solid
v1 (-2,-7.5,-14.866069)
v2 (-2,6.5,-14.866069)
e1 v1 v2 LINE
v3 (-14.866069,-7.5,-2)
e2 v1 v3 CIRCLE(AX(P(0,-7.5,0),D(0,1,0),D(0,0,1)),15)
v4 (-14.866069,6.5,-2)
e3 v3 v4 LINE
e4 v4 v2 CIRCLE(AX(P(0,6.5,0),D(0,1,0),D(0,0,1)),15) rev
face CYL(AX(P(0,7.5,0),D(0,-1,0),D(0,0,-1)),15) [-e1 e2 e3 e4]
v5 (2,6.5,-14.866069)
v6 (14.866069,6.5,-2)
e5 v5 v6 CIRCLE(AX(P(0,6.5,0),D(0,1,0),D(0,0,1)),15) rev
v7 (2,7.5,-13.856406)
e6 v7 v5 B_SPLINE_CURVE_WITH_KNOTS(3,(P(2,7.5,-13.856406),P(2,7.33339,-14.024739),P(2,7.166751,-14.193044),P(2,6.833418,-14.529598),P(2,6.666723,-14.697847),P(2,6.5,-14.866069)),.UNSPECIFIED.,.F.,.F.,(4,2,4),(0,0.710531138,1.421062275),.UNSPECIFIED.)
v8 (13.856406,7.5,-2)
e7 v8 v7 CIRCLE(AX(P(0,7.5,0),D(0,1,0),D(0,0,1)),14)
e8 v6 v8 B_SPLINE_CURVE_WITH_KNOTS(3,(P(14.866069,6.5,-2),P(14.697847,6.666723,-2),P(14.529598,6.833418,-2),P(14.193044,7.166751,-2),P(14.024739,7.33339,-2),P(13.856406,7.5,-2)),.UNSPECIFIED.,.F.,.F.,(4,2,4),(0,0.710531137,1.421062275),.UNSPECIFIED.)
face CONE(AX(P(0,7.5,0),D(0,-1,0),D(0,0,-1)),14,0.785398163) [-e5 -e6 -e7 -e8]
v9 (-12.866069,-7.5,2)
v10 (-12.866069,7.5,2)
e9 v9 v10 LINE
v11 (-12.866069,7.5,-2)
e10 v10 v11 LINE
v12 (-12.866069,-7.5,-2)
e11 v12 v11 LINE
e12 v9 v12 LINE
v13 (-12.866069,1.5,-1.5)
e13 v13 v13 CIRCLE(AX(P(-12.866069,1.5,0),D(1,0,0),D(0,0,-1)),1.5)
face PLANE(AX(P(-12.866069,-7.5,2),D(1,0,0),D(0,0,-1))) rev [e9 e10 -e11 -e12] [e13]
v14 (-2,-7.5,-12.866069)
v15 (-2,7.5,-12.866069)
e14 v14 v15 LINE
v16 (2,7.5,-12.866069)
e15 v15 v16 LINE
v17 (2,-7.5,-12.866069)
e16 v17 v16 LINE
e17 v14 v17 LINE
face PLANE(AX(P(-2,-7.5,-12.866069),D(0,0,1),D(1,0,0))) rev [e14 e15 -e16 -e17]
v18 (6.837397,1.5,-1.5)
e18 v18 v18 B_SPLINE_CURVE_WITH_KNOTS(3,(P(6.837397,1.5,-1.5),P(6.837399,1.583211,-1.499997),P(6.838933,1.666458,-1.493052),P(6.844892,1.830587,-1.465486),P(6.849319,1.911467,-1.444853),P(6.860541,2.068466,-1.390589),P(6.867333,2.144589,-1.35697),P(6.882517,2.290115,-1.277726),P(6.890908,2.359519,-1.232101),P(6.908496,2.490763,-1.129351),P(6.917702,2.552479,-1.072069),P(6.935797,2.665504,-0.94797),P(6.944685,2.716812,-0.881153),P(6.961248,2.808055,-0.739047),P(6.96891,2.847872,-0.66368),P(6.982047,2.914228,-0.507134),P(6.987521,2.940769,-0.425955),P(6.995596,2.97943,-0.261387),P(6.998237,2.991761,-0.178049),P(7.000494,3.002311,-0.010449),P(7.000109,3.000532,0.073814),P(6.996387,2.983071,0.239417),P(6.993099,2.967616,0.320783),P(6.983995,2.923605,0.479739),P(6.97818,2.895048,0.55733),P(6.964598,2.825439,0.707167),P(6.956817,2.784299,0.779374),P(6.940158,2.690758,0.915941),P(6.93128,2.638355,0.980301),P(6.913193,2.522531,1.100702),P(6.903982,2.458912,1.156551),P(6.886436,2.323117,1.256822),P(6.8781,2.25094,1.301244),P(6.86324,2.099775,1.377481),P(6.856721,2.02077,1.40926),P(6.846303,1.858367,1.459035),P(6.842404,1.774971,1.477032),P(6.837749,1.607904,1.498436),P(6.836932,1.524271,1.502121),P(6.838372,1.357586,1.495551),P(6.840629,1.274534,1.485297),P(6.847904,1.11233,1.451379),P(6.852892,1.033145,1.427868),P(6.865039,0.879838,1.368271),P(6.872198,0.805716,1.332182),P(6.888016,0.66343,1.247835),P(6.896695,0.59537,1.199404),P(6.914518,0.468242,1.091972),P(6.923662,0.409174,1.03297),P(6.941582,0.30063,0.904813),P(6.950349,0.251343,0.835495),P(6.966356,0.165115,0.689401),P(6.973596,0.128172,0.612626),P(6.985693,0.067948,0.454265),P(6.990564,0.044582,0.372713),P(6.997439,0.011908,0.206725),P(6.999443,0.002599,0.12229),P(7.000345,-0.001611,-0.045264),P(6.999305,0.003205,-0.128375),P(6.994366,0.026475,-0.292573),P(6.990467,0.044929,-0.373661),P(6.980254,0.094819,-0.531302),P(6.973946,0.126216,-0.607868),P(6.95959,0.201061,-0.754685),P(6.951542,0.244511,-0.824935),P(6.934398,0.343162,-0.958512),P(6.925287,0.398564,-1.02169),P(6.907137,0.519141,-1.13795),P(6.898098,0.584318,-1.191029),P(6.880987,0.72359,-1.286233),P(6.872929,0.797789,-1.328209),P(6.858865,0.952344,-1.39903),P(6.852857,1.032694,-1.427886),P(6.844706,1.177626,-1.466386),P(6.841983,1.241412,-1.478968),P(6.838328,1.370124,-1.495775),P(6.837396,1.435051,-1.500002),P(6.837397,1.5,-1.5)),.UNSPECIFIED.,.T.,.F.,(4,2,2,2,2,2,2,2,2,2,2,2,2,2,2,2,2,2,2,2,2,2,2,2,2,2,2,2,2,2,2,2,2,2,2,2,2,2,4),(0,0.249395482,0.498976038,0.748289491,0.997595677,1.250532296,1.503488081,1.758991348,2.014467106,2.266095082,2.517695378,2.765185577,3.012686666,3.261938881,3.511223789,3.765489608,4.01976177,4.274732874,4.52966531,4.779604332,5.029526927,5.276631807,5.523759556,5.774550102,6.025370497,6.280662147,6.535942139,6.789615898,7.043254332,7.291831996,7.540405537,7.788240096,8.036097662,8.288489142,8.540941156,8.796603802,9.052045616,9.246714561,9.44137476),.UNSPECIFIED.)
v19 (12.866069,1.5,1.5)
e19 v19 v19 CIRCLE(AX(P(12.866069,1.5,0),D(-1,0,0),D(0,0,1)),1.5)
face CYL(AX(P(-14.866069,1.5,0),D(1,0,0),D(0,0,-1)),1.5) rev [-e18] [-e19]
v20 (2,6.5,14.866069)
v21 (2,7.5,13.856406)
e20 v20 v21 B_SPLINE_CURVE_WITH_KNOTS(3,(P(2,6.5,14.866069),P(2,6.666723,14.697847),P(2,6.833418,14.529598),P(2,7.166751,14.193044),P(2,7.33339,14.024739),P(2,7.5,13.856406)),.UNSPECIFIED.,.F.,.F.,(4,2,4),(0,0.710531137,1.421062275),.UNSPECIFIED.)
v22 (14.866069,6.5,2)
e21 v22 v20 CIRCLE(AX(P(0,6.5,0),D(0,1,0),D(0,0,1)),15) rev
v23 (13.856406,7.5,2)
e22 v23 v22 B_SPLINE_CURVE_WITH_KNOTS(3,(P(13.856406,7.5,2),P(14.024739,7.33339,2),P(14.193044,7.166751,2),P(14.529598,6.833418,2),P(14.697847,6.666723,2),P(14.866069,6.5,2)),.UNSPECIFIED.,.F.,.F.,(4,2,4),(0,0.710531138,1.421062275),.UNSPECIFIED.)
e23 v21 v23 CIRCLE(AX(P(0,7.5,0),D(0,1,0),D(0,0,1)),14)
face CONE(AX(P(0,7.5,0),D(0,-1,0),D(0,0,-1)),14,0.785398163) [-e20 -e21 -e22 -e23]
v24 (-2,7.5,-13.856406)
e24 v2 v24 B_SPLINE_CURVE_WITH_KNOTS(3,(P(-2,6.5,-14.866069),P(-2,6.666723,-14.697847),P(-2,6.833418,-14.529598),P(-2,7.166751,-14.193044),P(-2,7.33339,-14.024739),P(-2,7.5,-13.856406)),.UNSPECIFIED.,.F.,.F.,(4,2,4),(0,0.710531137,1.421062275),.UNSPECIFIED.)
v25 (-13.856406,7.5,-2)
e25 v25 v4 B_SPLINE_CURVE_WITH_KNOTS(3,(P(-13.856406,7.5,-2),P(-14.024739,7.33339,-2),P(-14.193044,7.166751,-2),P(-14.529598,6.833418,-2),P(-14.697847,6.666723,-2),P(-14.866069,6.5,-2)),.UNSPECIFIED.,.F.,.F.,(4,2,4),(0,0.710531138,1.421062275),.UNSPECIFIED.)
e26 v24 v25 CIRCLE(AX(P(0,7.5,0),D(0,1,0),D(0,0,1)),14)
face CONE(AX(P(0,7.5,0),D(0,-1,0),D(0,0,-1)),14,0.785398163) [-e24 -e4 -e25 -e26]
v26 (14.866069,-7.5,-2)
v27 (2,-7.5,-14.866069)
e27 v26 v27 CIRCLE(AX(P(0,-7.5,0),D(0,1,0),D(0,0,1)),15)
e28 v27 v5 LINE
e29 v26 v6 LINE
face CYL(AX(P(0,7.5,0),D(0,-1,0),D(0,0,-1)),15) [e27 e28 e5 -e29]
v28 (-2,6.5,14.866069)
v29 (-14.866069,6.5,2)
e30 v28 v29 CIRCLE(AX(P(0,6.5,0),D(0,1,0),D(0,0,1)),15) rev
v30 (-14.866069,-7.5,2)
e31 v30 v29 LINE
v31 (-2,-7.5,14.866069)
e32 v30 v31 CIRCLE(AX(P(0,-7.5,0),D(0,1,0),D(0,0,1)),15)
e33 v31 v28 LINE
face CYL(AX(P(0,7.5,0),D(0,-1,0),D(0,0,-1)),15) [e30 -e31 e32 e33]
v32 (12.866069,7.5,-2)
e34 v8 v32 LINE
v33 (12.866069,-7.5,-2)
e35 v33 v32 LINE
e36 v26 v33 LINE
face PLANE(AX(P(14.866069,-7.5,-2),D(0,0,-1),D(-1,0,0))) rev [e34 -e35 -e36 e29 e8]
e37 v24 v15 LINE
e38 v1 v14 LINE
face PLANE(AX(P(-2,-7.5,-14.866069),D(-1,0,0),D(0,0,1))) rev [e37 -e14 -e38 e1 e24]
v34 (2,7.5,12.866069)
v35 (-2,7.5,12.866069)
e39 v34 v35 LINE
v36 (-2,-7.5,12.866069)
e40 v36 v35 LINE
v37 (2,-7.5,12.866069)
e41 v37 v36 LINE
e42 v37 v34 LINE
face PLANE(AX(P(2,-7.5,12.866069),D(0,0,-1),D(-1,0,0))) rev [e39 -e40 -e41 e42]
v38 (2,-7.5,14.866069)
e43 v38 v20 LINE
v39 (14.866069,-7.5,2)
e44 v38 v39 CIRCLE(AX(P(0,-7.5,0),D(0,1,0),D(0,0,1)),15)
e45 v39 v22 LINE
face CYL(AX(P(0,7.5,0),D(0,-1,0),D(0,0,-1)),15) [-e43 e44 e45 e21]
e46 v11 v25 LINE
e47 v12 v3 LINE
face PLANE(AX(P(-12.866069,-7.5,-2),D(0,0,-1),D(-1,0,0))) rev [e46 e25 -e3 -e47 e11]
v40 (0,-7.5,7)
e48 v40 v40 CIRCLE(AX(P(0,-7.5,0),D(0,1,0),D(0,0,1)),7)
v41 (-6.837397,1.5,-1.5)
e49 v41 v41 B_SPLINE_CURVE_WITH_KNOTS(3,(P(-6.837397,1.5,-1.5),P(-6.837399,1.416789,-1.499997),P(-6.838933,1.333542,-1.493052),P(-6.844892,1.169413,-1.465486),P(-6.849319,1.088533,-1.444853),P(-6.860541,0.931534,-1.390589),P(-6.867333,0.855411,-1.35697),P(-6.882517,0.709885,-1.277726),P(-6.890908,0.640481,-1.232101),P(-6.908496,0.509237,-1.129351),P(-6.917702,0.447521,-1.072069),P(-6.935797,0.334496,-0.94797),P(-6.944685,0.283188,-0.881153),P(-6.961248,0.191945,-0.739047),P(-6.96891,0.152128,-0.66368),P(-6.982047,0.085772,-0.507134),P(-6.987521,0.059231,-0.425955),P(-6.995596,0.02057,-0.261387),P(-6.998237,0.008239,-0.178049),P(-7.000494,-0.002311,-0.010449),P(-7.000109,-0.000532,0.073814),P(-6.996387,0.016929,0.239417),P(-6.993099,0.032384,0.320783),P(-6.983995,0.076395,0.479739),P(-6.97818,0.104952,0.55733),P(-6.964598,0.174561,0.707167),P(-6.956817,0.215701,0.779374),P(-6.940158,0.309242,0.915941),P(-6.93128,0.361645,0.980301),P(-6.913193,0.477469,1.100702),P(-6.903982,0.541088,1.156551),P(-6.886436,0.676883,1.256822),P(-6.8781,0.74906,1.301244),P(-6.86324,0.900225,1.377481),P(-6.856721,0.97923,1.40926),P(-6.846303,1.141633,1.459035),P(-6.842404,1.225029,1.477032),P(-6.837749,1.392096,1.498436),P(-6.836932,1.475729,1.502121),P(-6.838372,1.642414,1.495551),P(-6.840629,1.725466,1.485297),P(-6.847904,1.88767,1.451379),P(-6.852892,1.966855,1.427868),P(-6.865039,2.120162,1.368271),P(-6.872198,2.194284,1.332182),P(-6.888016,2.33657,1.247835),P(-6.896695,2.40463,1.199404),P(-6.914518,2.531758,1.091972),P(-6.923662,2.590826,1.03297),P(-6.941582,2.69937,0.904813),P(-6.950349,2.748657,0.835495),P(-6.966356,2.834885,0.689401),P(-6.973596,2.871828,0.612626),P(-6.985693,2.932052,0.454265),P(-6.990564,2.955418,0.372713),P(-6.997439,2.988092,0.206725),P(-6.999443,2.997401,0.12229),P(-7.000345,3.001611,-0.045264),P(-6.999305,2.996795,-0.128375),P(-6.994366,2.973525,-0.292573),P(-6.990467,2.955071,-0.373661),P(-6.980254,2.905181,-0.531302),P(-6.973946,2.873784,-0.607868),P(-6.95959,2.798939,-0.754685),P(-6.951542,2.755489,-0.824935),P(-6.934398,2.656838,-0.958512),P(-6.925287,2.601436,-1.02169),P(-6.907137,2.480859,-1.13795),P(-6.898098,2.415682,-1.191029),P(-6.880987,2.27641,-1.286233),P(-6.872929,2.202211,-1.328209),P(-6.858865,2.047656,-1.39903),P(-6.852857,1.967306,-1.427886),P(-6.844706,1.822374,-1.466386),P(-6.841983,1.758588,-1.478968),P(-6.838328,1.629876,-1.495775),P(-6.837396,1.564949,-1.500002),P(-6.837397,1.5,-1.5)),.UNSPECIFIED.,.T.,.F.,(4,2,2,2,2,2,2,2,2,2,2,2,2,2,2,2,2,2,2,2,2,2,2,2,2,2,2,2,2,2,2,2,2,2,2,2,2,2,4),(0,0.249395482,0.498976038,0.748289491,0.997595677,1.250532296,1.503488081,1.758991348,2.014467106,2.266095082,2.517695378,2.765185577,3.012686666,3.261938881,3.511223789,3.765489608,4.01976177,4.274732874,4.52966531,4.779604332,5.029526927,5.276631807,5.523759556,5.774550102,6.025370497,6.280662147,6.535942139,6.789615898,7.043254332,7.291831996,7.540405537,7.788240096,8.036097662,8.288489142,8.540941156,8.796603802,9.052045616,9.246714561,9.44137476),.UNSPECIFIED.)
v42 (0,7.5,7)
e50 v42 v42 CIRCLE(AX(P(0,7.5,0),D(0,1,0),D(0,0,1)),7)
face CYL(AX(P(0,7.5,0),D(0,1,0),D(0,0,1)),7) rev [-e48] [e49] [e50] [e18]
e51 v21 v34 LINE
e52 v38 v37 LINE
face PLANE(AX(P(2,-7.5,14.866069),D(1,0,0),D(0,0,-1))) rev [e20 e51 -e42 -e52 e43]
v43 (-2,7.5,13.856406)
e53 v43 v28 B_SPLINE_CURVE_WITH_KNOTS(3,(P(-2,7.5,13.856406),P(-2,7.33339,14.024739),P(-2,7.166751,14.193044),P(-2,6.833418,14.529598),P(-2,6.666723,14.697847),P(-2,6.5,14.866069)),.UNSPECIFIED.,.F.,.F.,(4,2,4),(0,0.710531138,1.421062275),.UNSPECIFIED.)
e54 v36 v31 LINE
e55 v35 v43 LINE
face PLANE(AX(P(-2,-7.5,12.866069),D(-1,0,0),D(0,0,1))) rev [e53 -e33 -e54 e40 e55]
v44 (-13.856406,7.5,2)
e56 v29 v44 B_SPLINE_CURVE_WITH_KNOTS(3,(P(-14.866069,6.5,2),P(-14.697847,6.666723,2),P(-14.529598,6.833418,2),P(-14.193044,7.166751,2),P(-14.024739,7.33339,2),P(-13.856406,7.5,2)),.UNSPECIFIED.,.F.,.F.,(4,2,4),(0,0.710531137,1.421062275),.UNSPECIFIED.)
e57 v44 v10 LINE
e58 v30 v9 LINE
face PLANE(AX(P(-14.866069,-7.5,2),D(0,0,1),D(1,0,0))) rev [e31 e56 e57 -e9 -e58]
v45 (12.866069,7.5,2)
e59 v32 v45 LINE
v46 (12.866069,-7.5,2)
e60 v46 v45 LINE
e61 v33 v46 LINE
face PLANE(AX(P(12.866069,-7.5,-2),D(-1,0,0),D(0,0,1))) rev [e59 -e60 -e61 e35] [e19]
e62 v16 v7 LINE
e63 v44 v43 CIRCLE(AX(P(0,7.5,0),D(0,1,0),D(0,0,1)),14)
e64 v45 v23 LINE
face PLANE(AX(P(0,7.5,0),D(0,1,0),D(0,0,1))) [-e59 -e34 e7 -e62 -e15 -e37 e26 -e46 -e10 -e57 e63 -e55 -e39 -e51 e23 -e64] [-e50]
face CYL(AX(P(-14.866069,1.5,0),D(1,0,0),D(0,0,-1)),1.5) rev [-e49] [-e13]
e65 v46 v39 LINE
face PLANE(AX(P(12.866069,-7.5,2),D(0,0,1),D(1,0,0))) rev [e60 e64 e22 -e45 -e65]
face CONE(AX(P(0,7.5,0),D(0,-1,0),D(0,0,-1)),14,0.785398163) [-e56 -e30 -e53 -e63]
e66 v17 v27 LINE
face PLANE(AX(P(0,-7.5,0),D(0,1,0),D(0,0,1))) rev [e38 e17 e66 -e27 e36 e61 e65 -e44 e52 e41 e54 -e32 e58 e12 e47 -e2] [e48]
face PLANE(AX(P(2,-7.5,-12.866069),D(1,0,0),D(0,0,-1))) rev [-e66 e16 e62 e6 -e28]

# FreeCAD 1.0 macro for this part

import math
import FreeCAD as App
import Part
import Sketcher


def edges_at(feature, points):
    """Names of the edges that pass closest to the given points."""
    edges = feature.Shape.Edges
    near = lambda p: min(range(len(edges)), key=lambda i: edges[i].distToShape(Part.Vertex(*p))[0])
    return sorted({f"Edge{near(p) + 1}" for p in points})

doc = App.newDocument("Part")
body = doc.addObject("PartDesign::Body", "Body")

# Sketch on XZ plane
sketch1 = body.newObject("Sketcher::SketchObject", "Sketch")
sketch1.AttachmentSupport = (doc.getObject("XZ_Plane"), [""])
sketch1.MapMode = "FlatFace"
sketch1.addGeometry(Part.Circle(App.Vector(0, 0, 0), App.Vector(0, 0, 1), 15), False)
sketch1.addConstraint([
    Sketcher.Constraint("Coincident", 0, 3, -1, 1),
    Sketcher.Constraint("Diameter", 0, 30.0),
])
pad1 = body.newObject("PartDesign::Pad", "Pad")
pad1.Profile = sketch1
pad1.Length = 15
pad1.Midplane = True

# Sketch on XZ plane
sketch2 = body.newObject("Sketcher::SketchObject", "Sketch001")
sketch2.AttachmentSupport = (doc.getObject("XZ_Plane"), [""])
sketch2.MapMode = "FlatFace"
sketch2.addGeometry([
    Part.LineSegment(App.Vector(-2, -14.9, 0), App.Vector(-2, -12.9, 0)),  # 0
    Part.LineSegment(App.Vector(-2, -12.9, 0), App.Vector(2, -12.9, 0)),  # 1
    Part.LineSegment(App.Vector(2, -12.9, 0), App.Vector(2, -14.9, 0)),  # 2
    Part.ArcOfCircle(Part.Circle(App.Vector(0, 0, 0), App.Vector(0, 0, 1), 15), math.radians(-97.66), math.radians(-82.34)),  # 3
    Part.LineSegment(App.Vector(14.9, -2, 0), App.Vector(12.9, -2, 0)),  # 4
    Part.LineSegment(App.Vector(12.9, -2, 0), App.Vector(12.9, 2, 0)),  # 5
    Part.LineSegment(App.Vector(12.9, 2, 0), App.Vector(14.9, 2, 0)),  # 6
    Part.ArcOfCircle(Part.Circle(App.Vector(0, 0, 0), App.Vector(0, 0, 1), 15), math.radians(-7.66), math.radians(7.66)),  # 7
    Part.LineSegment(App.Vector(2, 14.9, 0), App.Vector(2, 12.9, 0)),  # 8
    Part.LineSegment(App.Vector(2, 12.9, 0), App.Vector(-2, 12.9, 0)),  # 9
    Part.LineSegment(App.Vector(-2, 12.9, 0), App.Vector(-2, 14.9, 0)),  # 10
    Part.ArcOfCircle(Part.Circle(App.Vector(0, 0, 0), App.Vector(0, 0, 1), 15), math.radians(82.34), math.radians(97.66)),  # 11
    Part.LineSegment(App.Vector(-14.9, 2, 0), App.Vector(-12.9, 2, 0)),  # 12
    Part.LineSegment(App.Vector(-12.9, 2, 0), App.Vector(-12.9, -2, 0)),  # 13
    Part.LineSegment(App.Vector(-12.9, -2, 0), App.Vector(-14.9, -2, 0)),  # 14
    Part.ArcOfCircle(Part.Circle(App.Vector(0, 0, 0), App.Vector(0, 0, 1), 15), math.radians(172.34), math.radians(187.66)),  # 15
], False)
sketch2.addConstraint([
    Sketcher.Constraint("Coincident", 0, 2, 1, 1),
    Sketcher.Constraint("Coincident", 1, 2, 2, 1),
    Sketcher.Constraint("Coincident", 2, 2, 3, 2),
    Sketcher.Constraint("Coincident", 3, 1, 0, 1),
    Sketcher.Constraint("Coincident", 4, 2, 5, 1),
    Sketcher.Constraint("Coincident", 5, 2, 6, 1),
    Sketcher.Constraint("Coincident", 6, 2, 7, 2),
    Sketcher.Constraint("Coincident", 7, 1, 4, 1),
    Sketcher.Constraint("Coincident", 8, 2, 9, 1),
    Sketcher.Constraint("Coincident", 9, 2, 10, 1),
    Sketcher.Constraint("Coincident", 10, 2, 11, 2),
    Sketcher.Constraint("Coincident", 11, 1, 8, 1),
    Sketcher.Constraint("Coincident", 12, 2, 13, 1),
    Sketcher.Constraint("Coincident", 13, 2, 14, 1),
    Sketcher.Constraint("Coincident", 14, 2, 15, 2),
    Sketcher.Constraint("Coincident", 15, 1, 12, 1),
    Sketcher.Constraint("Vertical", 0),
    Sketcher.Constraint("Horizontal", 1),
    Sketcher.Constraint("Vertical", 2),
    Sketcher.Constraint("Horizontal", 4),
    Sketcher.Constraint("Vertical", 5),
    Sketcher.Constraint("Horizontal", 6),
    Sketcher.Constraint("Vertical", 8),
    Sketcher.Constraint("Horizontal", 9),
    Sketcher.Constraint("Vertical", 10),
    Sketcher.Constraint("Horizontal", 12),
    Sketcher.Constraint("Vertical", 13),
    Sketcher.Constraint("Horizontal", 14),
    Sketcher.Constraint("Coincident", 3, 3, -1, 1),
    Sketcher.Constraint("Coincident", 7, 3, -1, 1),
    Sketcher.Constraint("Coincident", 11, 3, -1, 1),
    Sketcher.Constraint("Coincident", 15, 3, -1, 1),
    Sketcher.Constraint("Equal", 3, 7),
    Sketcher.Constraint("Equal", 7, 11),
    Sketcher.Constraint("Equal", 11, 15),
    Sketcher.Constraint("Symmetric", 0, 2, 8, 2, -1, 1),
    Sketcher.Constraint("Symmetric", 4, 2, 12, 2, -1, 1),
    Sketcher.Constraint("Horizontal", 2, 2, 3, 1),
    Sketcher.Constraint("Horizontal", 10, 2, 11, 1),
    Sketcher.Constraint("Horizontal", 6, 2, 12, 2),
    Sketcher.Constraint("Horizontal", 7, 1, 13, 2),
    Sketcher.Constraint("Equal", 14, 0),
    Sketcher.Constraint("Equal", 9, 5),
    Sketcher.Constraint("Radius", 3, 15.0),
    Sketcher.Constraint("DistanceX", 1, 1, 1, 2, 4.0),
    Sketcher.Constraint("DistanceX", 4, 2, 4, 1, 2.0),
])
pocket1 = body.newObject("PartDesign::Pocket", "Pocket")
pocket1.Profile = sketch2
pocket1.Type = "ThroughAll"
pocket1.Midplane = True
doc.recompute()

chamfer = body.newObject("PartDesign::Chamfer", "Chamfer")
chamfer.Base = (pocket1, edges_at(pocket1, [
    (10.607, 7.5, -10.607),
    (-10.607, 7.5, -10.607),
    (-10.607, 7.5, 10.607),
    (10.607, 7.5, 10.607),
]))
chamfer.Size = 1

# Sketch on XZ plane
sketch3 = body.newObject("Sketcher::SketchObject", "Sketch002")
sketch3.AttachmentSupport = (doc.getObject("XZ_Plane"), [""])
sketch3.MapMode = "FlatFace"
sketch3.AttachmentOffset = App.Placement(App.Vector(0, 0, -7.5), App.Rotation())
sketch3.addGeometry(Part.Circle(App.Vector(0, 0, 0), App.Vector(0, 0, 1), 7), False)
sketch3.addConstraint([
    Sketcher.Constraint("Coincident", 0, 3, -1, 1),
    Sketcher.Constraint("Diameter", 0, 14.0),
])
doc.recompute()
hole = body.newObject("PartDesign::Hole", "Hole")
hole.Profile = sketch3
hole.ThreadType = "None"
hole.Diameter = 14
hole.DepthType = "Dimension"
hole.Depth = 15
hole.DrillPoint = "Flat"
hole.Reversed = True

# Sketch on YZ plane
sketch4 = body.newObject("Sketcher::SketchObject", "Sketch003")
sketch4.AttachmentSupport = (doc.getObject("YZ_Plane"), [""])
sketch4.MapMode = "FlatFace"
sketch4.AttachmentOffset = App.Placement(App.Vector(0, 0, 12.866069), App.Rotation())
sketch4.addGeometry(Part.Circle(App.Vector(1.5, 0, 0), App.Vector(0, 0, 1), 1.5), False)
sketch4.addConstraint([
    Sketcher.Constraint("PointOnObject", 0, 3, -1),
    Sketcher.Constraint("Diameter", 0, 3.0),
    Sketcher.Constraint("DistanceX", -1, 1, 0, 3, 1.5),
])
pocket2 = body.newObject("PartDesign::Pocket", "Pocket001")
pocket2.Profile = sketch4
pocket2.Type = "ThroughAll"
pocket2.Midplane = True

doc.recompute()
